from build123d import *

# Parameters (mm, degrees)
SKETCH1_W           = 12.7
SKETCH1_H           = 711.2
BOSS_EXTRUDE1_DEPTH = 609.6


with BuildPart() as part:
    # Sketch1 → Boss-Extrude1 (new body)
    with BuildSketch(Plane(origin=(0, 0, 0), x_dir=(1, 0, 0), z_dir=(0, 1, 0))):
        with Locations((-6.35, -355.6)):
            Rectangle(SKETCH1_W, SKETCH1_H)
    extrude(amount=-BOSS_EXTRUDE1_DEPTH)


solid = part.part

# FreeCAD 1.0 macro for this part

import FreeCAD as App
import Part
import Sketcher
from FreeCAD import Vector
Q = App.Units.Quantity

doc = App.newDocument("Part")
params = doc.addObject("Spreadsheet::Sheet", "Params")
for row, (alias, value) in enumerate([
    ("sketch1_height", "28 in"),
    ("sketch1_width", "0.5 in"),
    ("pad1_length", "24 in"),
], start=1):
    params.set(f"A{row}", alias)
    params.set(f"B{row}", "=" + value)
    params.setAlias(f"B{row}", alias)

body = doc.addObject("PartDesign::Body", "Body")

# Sketch on XZ plane
sketch1 = body.newObject("Sketcher::SketchObject", "Sketch")
sketch1.AttachmentSupport = (doc.getObject("XZ_Plane"), [""])
sketch1.MapMode = "FlatFace"
sketch1.addGeometry([
    Part.LineSegment(Vector(-13, 0, 0), Vector(-13, 711, 0)),
    Part.LineSegment(Vector(-13, 711, 0), Vector(0, 711, 0)),
    Part.LineSegment(Vector(0, 711, 0), Vector(0, 0, 0)),
    Part.LineSegment(Vector(0, 0, 0), Vector(-13, 0, 0)),
], False)
sketch1.addConstraint([
    Sketcher.Constraint("Coincident", 0, 2, 1, 1),
    Sketcher.Constraint("Coincident", 1, 2, 2, 1),
    Sketcher.Constraint("Coincident", 2, 2, 3, 1),
    Sketcher.Constraint("Coincident", 3, 2, 0, 1),
    Sketcher.Constraint("Vertical", 0),
    Sketcher.Constraint("Horizontal", 1),
    Sketcher.Constraint("Vertical", 2),
    Sketcher.Constraint("Horizontal", 3),
    Sketcher.Constraint("Coincident", 2, 2, -1, 1),
    Sketcher.Constraint("DistanceY", 0, 1, 0, 2, Q("28 in")),
    Sketcher.Constraint("DistanceX", 1, 1, 1, 2, Q("0.5 in")),
])
sketch1.setExpression("Constraints[9]", "Params.sketch1_height")
sketch1.setExpression("Constraints[10]", "Params.sketch1_width")
pad1 = body.newObject("PartDesign::Pad", "Pad")
pad1.Profile = sketch1
pad1.setExpression("Length", "Params.pad1_length")

doc.recompute()
